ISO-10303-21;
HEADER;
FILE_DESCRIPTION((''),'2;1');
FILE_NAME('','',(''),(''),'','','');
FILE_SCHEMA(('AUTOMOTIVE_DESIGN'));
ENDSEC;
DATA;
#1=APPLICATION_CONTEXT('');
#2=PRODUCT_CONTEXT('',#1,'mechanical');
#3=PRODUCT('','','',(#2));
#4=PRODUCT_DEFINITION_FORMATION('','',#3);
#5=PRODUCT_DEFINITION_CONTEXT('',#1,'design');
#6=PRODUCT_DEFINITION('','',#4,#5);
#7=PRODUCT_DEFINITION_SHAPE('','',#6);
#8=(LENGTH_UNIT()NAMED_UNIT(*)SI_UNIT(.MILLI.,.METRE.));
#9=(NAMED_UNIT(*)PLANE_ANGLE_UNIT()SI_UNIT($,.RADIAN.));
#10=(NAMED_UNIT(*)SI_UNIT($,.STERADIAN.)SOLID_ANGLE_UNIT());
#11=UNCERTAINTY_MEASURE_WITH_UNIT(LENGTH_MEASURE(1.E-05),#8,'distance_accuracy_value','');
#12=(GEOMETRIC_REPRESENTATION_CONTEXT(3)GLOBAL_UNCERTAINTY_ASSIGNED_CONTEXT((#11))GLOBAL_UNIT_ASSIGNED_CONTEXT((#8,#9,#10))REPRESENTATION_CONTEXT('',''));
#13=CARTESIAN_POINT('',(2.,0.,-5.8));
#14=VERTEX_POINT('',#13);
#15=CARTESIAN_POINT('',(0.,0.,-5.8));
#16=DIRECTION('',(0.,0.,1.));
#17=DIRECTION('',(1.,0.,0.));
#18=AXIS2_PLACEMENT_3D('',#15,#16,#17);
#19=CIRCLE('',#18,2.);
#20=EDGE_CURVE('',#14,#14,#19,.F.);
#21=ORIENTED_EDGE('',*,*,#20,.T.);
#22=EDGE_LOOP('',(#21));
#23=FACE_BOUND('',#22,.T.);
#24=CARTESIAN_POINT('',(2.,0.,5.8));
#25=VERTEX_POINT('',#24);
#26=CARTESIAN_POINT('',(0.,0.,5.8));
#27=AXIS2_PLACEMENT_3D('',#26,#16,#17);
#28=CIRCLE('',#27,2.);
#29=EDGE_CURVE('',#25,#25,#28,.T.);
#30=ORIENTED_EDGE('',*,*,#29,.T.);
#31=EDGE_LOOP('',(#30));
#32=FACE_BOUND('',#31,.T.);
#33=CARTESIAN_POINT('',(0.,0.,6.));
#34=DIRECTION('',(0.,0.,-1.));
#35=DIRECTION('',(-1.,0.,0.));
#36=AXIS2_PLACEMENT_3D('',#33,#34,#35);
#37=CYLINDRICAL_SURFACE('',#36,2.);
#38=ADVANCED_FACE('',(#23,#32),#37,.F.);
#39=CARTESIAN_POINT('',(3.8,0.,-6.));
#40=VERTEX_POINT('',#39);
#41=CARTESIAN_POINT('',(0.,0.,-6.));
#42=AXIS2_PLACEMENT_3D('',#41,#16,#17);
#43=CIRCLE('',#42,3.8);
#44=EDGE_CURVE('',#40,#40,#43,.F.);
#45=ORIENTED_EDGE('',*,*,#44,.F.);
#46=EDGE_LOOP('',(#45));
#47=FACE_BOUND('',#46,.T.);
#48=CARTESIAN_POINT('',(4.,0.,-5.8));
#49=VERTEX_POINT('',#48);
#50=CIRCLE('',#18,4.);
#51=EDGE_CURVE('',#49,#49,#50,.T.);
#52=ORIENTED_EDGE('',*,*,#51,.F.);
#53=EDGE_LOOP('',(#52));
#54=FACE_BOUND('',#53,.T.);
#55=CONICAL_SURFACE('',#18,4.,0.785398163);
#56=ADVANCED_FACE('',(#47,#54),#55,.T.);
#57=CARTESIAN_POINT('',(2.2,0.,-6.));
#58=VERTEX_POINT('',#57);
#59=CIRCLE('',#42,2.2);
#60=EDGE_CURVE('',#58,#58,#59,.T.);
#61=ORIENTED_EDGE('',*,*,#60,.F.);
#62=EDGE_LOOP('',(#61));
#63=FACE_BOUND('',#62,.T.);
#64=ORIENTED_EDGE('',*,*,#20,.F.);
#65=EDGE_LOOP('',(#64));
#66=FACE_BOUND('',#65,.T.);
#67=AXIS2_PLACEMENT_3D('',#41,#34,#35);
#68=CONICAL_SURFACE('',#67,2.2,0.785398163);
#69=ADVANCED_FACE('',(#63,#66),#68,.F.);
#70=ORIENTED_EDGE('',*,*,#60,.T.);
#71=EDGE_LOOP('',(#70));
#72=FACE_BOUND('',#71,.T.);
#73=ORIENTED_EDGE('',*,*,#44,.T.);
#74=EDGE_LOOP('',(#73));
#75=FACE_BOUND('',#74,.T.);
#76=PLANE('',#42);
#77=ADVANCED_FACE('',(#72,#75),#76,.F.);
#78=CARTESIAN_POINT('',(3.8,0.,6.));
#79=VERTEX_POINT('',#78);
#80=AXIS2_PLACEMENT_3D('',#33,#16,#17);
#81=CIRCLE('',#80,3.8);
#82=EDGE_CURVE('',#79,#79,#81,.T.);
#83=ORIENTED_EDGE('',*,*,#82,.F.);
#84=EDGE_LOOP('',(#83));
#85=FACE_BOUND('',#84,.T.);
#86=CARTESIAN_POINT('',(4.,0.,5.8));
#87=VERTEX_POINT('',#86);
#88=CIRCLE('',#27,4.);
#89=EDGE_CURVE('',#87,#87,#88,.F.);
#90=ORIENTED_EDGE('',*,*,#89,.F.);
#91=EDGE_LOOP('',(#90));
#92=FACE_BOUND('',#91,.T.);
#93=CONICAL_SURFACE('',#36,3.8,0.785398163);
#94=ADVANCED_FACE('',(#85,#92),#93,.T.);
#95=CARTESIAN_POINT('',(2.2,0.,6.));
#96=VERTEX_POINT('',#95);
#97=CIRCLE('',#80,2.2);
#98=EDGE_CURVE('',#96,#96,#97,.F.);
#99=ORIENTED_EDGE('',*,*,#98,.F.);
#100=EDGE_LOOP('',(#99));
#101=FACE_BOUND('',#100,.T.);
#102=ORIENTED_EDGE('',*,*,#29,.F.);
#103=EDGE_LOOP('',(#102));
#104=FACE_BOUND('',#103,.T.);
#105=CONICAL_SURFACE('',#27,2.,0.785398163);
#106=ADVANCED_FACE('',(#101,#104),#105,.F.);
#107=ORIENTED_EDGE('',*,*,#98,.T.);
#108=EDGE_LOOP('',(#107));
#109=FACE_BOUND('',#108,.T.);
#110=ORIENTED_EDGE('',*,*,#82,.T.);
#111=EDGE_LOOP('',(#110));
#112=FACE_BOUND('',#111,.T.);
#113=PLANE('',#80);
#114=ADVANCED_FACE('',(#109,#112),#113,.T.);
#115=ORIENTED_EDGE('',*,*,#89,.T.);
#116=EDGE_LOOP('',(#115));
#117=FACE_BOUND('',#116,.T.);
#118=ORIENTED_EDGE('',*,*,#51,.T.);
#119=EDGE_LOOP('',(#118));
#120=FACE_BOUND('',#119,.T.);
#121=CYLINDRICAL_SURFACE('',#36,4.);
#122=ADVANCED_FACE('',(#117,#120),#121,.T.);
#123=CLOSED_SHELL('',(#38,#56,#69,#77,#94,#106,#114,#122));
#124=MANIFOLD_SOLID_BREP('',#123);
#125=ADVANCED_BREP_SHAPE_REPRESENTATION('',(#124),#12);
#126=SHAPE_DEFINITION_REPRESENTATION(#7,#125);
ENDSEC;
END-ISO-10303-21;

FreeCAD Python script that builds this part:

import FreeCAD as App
import Part
import Sketcher


def edges_at(feature, points):
    """Names of the edges that pass closest to the given points."""
    edges = feature.Shape.Edges
    near = lambda p: min(range(len(edges)), key=lambda i: edges[i].distToShape(Part.Vertex(*p))[0])
    return sorted({f"Edge{near(p) + 1}" for p in points})

doc = App.newDocument("Part")
body = doc.addObject("PartDesign::Body", "Body")

# Sketch on XY plane
sketch1 = body.newObject("Sketcher::SketchObject", "Sketch")
sketch1.AttachmentSupport = (doc.getObject("XY_Plane"), [""])
sketch1.MapMode = "FlatFace"
sketch1.addGeometry([
    Part.Circle(App.Vector(0, 0, 0), App.Vector(0, 0, 1), 4),
    Part.Circle(App.Vector(0, 0, 0), App.Vector(0, 0, 1), 2),
], False)
sketch1.addConstraint([
    Sketcher.Constraint("Coincident", 0, 3, -1, 1),
    Sketcher.Constraint("Coincident", 1, 3, -1, 1),
    Sketcher.Constraint("Diameter", 0, 8.0),
    Sketcher.Constraint("Diameter", 1, 4.0),
])
pad1 = body.newObject("PartDesign::Pad", "Pad")
pad1.Profile = sketch1
pad1.Length = 12
pad1.Midplane = True
doc.recompute()

chamfer = body.newObject("PartDesign::Chamfer", "Chamfer")
chamfer.Base = (pad1, edges_at(pad1, [
    (-4, 0, -6),
    (-4, 0, 6),
    (-2, 0, -6),
    (-2, 0, 6),
]))
chamfer.Size = 0.2

doc.recompute()
